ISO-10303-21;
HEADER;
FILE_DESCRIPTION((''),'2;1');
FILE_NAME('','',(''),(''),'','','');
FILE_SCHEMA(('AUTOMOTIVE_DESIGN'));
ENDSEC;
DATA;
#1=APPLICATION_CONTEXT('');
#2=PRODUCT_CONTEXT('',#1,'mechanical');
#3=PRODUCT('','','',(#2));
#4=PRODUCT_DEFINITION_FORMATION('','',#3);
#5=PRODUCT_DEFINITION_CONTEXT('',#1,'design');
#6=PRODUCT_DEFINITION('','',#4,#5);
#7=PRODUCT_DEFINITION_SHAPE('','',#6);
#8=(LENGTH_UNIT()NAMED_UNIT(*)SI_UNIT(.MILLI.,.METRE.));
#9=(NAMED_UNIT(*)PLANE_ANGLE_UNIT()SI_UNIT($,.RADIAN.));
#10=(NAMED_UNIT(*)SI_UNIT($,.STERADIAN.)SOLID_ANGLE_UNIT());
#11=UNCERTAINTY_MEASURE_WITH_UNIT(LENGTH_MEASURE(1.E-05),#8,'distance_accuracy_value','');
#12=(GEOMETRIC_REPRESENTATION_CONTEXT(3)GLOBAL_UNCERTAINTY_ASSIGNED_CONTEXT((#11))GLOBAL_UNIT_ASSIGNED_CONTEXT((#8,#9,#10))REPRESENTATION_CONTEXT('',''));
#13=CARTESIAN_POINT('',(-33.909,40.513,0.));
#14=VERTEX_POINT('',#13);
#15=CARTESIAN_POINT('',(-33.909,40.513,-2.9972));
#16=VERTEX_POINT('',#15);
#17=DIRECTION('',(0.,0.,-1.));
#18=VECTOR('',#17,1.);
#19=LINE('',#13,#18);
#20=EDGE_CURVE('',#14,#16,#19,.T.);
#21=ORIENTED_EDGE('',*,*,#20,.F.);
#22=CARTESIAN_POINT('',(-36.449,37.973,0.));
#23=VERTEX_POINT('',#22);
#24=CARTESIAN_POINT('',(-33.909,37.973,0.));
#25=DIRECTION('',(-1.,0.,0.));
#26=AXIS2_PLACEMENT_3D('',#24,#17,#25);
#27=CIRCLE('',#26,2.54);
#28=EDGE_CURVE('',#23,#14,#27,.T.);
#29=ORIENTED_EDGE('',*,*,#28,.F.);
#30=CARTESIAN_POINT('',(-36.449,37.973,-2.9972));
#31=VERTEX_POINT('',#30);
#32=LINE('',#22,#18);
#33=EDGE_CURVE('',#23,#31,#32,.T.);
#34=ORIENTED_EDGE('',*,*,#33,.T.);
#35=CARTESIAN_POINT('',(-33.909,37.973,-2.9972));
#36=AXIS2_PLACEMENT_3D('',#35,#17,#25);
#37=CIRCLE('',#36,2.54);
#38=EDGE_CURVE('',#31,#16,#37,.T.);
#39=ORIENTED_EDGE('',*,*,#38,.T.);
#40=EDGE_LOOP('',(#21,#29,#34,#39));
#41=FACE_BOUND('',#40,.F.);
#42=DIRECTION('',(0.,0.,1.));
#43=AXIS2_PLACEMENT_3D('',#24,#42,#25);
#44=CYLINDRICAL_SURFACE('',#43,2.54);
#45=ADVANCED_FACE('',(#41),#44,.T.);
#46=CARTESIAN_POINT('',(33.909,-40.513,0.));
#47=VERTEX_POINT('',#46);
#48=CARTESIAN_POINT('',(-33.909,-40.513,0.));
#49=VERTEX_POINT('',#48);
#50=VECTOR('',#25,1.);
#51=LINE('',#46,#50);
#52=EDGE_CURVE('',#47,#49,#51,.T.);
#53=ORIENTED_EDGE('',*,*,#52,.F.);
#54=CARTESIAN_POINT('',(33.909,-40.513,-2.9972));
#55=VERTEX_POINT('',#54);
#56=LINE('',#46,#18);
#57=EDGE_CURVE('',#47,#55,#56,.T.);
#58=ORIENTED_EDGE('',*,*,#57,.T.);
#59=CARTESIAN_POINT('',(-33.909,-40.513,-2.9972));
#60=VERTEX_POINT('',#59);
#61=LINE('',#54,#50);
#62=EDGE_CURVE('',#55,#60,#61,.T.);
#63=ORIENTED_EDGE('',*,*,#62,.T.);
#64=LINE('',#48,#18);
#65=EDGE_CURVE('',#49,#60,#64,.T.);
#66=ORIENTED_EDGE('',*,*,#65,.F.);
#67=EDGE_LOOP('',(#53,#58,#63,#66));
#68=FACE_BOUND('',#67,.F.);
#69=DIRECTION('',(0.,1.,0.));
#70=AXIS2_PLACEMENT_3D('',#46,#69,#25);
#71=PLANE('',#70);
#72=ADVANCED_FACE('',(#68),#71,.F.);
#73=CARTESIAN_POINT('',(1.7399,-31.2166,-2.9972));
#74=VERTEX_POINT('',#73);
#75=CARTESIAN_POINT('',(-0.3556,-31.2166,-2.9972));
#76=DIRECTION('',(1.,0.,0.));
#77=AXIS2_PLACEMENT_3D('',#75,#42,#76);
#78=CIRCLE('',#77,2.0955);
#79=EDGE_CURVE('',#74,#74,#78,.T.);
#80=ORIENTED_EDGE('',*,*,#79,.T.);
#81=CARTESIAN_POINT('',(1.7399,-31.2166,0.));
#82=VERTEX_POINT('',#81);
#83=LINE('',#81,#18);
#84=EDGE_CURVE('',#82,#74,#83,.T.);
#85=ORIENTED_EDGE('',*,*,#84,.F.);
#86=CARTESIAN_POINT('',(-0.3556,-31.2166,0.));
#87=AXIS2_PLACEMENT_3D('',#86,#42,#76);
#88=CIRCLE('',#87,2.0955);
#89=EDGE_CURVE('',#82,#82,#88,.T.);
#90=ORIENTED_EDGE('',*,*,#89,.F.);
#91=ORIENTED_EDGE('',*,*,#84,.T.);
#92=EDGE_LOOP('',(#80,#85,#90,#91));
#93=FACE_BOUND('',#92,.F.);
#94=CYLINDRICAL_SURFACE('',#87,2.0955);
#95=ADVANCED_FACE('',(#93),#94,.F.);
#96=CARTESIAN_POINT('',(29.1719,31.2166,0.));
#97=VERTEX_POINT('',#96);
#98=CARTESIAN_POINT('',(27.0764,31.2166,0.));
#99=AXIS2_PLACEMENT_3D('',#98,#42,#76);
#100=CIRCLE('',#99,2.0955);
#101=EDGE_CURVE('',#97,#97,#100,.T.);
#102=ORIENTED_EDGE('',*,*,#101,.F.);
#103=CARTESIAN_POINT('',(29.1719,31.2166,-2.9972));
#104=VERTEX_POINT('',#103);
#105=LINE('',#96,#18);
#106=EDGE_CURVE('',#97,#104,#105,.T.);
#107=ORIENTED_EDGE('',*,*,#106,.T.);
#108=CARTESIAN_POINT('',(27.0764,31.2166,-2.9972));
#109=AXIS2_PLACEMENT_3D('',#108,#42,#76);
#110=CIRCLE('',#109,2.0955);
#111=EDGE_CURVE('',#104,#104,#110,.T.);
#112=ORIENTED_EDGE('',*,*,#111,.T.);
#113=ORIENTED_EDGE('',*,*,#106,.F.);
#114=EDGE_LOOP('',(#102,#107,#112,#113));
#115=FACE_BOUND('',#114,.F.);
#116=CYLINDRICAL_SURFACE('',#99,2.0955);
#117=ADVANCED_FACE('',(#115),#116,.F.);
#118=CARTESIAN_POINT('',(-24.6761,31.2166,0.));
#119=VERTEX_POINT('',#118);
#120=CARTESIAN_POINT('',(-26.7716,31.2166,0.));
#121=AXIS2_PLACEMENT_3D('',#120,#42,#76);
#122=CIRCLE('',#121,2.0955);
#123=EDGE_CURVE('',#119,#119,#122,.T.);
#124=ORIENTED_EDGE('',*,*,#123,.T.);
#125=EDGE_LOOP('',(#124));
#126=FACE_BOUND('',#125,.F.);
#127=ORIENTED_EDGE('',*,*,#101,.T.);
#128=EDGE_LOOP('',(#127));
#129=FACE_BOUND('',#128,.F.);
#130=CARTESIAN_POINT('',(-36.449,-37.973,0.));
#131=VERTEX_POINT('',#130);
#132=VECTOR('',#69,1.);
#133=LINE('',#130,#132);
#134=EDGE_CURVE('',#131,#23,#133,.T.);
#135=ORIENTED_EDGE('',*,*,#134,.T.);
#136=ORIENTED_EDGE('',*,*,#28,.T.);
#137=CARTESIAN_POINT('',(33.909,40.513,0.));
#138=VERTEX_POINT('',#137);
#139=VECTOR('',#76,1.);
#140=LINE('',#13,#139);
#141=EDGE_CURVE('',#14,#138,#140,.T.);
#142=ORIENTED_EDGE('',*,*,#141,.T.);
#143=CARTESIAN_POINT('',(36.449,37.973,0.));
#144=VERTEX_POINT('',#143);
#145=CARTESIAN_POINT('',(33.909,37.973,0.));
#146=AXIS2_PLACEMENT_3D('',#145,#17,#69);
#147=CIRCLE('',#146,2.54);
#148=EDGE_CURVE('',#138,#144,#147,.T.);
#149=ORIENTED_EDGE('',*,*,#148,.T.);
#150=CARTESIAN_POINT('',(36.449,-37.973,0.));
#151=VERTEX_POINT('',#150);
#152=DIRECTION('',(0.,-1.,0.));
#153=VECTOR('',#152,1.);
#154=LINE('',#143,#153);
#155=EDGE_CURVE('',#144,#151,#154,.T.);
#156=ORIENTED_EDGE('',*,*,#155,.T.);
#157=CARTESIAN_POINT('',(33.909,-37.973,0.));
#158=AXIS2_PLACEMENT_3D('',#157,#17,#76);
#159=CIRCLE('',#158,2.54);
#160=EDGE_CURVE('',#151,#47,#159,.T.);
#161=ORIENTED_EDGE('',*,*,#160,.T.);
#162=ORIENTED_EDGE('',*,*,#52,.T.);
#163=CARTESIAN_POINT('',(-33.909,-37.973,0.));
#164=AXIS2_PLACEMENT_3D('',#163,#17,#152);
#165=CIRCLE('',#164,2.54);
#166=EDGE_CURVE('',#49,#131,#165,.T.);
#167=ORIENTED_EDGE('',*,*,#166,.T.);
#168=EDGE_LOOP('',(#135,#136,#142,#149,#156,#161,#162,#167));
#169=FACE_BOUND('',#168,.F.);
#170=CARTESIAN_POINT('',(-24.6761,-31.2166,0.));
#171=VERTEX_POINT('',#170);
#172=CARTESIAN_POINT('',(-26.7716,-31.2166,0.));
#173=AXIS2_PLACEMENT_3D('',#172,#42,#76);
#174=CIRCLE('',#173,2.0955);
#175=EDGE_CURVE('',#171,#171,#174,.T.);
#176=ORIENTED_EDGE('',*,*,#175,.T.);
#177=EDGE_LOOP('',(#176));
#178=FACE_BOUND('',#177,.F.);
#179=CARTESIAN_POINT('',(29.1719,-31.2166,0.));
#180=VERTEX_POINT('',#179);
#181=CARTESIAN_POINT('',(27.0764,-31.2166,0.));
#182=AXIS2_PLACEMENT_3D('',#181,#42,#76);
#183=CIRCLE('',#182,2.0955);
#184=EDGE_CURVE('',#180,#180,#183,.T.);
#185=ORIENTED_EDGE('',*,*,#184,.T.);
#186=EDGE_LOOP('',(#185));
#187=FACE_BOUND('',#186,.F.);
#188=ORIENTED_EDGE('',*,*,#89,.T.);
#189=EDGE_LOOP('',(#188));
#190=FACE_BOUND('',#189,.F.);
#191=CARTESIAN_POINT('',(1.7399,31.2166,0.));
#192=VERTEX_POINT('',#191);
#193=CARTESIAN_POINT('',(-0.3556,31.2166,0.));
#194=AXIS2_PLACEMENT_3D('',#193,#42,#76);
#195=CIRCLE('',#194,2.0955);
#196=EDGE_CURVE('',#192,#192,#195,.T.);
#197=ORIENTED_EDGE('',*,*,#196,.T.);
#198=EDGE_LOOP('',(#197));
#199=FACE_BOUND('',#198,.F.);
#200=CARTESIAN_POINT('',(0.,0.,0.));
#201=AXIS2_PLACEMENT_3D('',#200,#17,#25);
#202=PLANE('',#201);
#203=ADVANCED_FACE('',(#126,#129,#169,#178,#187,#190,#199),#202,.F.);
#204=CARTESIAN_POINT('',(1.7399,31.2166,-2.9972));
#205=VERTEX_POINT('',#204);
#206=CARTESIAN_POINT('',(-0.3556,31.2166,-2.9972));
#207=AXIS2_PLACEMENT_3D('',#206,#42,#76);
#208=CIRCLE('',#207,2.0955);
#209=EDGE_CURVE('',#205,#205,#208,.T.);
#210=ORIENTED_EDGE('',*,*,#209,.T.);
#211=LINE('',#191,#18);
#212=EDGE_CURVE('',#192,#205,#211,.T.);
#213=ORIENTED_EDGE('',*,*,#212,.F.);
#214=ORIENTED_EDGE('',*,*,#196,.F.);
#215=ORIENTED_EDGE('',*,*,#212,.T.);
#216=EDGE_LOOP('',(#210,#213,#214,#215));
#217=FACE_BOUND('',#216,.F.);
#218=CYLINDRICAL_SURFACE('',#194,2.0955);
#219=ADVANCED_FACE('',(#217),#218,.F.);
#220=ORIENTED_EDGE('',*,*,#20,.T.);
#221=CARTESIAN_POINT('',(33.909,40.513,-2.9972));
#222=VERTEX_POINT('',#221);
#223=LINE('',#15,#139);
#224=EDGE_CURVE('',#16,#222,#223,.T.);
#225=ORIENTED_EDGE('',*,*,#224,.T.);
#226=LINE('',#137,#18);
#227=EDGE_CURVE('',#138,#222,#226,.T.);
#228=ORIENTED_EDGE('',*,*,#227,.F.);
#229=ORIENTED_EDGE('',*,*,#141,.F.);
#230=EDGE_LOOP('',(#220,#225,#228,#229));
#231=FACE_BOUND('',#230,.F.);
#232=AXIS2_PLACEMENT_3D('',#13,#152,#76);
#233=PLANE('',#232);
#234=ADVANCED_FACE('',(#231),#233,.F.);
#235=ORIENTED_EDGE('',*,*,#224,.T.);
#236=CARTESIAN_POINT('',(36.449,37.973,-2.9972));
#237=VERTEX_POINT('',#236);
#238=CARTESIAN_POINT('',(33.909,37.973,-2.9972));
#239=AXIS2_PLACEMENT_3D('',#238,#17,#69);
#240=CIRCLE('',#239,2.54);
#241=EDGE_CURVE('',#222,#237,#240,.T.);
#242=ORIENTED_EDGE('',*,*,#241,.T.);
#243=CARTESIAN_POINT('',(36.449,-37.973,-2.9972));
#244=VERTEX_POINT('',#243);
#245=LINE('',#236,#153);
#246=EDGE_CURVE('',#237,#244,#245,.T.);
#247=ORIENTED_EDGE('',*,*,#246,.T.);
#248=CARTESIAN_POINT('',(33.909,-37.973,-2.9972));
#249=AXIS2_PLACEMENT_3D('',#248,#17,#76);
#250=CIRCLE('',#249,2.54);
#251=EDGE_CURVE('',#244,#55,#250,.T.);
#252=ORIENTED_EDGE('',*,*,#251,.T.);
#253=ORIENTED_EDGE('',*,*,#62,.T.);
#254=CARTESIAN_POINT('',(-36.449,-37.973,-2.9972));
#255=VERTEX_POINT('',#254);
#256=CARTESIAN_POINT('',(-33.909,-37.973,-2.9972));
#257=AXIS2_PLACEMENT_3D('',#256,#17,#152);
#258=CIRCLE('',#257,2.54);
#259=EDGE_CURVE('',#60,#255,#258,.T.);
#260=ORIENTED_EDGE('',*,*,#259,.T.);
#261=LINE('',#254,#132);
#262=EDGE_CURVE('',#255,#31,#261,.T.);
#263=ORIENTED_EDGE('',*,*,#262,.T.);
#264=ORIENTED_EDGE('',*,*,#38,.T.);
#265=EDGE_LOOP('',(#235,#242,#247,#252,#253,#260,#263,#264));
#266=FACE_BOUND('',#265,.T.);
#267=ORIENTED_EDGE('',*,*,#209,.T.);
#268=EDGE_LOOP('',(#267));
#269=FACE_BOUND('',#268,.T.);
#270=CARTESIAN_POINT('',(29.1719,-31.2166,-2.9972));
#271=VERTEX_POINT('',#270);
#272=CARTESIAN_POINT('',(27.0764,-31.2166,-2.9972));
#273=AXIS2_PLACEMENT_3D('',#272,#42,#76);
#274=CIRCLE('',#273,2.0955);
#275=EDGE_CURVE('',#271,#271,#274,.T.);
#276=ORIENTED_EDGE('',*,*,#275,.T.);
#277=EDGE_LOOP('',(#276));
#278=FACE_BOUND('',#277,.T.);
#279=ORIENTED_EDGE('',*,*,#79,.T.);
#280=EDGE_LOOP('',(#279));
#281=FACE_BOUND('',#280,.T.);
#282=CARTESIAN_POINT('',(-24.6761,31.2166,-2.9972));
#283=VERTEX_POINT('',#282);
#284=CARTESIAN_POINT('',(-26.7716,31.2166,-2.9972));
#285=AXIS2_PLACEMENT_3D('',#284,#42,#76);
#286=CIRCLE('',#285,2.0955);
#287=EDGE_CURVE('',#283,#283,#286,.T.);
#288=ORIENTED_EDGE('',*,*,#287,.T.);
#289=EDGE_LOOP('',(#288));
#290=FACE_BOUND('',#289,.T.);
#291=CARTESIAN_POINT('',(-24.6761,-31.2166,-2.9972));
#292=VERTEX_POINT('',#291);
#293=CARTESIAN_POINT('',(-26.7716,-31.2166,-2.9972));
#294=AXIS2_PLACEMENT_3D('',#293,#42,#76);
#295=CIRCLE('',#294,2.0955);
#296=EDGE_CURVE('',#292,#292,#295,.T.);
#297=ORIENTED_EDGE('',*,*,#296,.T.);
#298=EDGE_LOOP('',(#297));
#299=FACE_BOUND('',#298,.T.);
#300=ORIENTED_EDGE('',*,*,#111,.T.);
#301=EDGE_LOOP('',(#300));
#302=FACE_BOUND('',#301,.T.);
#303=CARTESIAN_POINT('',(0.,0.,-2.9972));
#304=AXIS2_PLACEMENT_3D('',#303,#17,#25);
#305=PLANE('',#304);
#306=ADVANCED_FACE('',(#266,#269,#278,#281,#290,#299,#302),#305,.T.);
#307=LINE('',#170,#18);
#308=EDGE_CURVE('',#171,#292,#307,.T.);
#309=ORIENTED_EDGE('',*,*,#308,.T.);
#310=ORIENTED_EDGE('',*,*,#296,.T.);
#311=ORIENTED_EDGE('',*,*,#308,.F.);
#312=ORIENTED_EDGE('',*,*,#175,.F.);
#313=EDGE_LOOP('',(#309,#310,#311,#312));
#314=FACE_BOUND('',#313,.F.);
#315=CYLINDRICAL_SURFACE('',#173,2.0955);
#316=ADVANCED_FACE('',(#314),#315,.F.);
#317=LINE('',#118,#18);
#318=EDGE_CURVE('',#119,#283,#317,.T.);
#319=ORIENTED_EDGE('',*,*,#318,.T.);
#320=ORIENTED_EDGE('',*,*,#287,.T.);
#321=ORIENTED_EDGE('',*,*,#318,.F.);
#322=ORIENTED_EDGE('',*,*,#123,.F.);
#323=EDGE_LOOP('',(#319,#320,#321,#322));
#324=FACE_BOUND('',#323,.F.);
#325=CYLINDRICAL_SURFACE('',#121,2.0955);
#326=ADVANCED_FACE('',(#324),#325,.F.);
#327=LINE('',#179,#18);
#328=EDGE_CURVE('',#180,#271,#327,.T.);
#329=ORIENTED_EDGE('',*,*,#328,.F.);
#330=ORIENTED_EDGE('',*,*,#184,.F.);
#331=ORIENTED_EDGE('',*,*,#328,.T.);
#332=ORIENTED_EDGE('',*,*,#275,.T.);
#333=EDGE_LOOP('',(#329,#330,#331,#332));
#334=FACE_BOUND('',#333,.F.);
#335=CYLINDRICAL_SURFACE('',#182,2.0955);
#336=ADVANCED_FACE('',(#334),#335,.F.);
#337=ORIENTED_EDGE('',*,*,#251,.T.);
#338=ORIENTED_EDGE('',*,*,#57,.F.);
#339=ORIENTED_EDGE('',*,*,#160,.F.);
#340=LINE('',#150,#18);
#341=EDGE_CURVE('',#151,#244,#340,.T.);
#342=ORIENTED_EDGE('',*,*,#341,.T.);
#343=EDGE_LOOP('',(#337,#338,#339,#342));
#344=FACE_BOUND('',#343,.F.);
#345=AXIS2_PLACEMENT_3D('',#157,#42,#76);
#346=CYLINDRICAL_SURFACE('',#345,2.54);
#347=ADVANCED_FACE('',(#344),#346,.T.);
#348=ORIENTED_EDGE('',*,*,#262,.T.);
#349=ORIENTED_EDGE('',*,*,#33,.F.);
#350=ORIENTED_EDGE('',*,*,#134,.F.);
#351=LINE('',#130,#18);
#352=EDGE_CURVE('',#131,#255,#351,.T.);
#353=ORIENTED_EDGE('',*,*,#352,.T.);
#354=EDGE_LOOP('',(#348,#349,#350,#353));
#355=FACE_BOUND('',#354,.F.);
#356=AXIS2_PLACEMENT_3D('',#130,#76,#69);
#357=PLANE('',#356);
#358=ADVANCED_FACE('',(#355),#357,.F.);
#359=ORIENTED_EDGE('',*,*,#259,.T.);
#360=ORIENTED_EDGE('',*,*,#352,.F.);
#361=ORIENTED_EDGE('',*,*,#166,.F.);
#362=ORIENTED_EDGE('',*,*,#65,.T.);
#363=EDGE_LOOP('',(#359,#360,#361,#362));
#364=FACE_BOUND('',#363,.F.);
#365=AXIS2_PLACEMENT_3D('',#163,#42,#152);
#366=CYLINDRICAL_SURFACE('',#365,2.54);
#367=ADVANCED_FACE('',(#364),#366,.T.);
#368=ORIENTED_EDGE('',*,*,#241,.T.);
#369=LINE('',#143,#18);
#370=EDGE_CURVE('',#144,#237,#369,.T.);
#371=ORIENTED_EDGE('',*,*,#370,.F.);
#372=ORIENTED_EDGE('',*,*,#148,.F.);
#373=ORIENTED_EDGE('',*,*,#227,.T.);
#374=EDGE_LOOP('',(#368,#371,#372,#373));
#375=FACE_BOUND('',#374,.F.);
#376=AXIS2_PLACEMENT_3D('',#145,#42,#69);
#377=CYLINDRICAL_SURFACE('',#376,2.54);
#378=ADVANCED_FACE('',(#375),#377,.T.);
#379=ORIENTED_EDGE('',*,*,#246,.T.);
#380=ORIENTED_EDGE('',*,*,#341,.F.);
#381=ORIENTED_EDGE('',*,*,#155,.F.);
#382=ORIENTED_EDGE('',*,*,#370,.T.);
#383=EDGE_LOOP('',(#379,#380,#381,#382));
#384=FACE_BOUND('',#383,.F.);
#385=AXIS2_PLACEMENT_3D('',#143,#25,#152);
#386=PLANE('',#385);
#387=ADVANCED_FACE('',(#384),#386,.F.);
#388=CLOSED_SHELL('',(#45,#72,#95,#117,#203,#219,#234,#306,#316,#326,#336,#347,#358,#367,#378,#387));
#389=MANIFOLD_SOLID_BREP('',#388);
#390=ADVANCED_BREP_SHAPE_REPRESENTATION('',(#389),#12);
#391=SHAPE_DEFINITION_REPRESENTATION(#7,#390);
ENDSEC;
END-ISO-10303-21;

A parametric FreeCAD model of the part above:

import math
import FreeCAD as App
import Part
import Sketcher

V = App.Vector
Q = App.Units.Quantity

doc = App.newDocument("Part")
body = doc.addObject("PartDesign::Body", "Body")

# Sketch on XY plane
sketch1 = doc.addObject("Sketcher::SketchObject", "Sketch")
body.addObject(sketch1)
sketch1.AttachmentSupport = (doc.XY_Plane, [""])
sketch1.MapMode = "FlatFace"
sketch1.addGeometry([
    Part.LineSegment(V(-36.449, 37.973, 0), V(-36.449, -37.973, 0)),  # 0
    Part.ArcOfCircle(Part.Circle(V(-33.909, -37.973, 0), V(0, 0, 1), 2.54), math.radians(-180), math.radians(-90)),  # 1
    Part.LineSegment(V(-33.909, -40.513, 0), V(33.909, -40.513, 0)),  # 2
    Part.ArcOfCircle(Part.Circle(V(33.909, -37.973, 0), V(0, 0, 1), 2.54), math.radians(-90), math.radians(0)),  # 3
    Part.LineSegment(V(36.449, -37.973, 0), V(36.449, 37.973, 0)),  # 4
    Part.ArcOfCircle(Part.Circle(V(33.909, 37.973, 0), V(0, 0, 1), 2.54), math.radians(0), math.radians(90)),  # 5
    Part.LineSegment(V(33.909, 40.513, 0), V(-33.909, 40.513, 0)),  # 6
    Part.ArcOfCircle(Part.Circle(V(-33.909, 37.973, 0), V(0, 0, 1), 2.54), math.radians(90), math.radians(180)),  # 7
], False)
sketch1.addConstraint([
    Sketcher.Constraint("Tangent", 0, 2, 1, 1),
    Sketcher.Constraint("Tangent", 1, 2, 2, 1),
    Sketcher.Constraint("Tangent", 2, 2, 3, 1),
    Sketcher.Constraint("Tangent", 3, 2, 4, 1),
    Sketcher.Constraint("Tangent", 4, 2, 5, 1),
    Sketcher.Constraint("Tangent", 5, 2, 6, 1),
    Sketcher.Constraint("Tangent", 6, 2, 7, 1),
    Sketcher.Constraint("Tangent", 7, 2, 0, 1),
    Sketcher.Constraint("Vertical", 0),
    Sketcher.Constraint("Horizontal", 2),
    Sketcher.Constraint("Vertical", 4),
    Sketcher.Constraint("Horizontal", 6),
    Sketcher.Constraint("Equal", 1, 3),
    Sketcher.Constraint("Equal", 3, 5),
    Sketcher.Constraint("Equal", 5, 7),
    Sketcher.Constraint("Symmetric", 1, 3, 5, 3, -1, 1),
    Sketcher.Constraint("Radius", 1, Q("0.1 in")),
    Sketcher.Constraint("DistanceX", 2, 1, 2, 2, Q("2.67 in")),
    Sketcher.Constraint("DistanceY", 0, 2, 0, 1, Q("2.99 in")),
])
pad1 = doc.addObject("PartDesign::Pad", "Pad")
body.addObject(pad1)
pad1.Profile = sketch1
pad1.Length = Q("0.118 in")
pad1.Reversed = True

# Sketch on XY plane
sketch2 = doc.addObject("Sketcher::SketchObject", "Sketch001")
body.addObject(sketch2)
sketch2.AttachmentSupport = (doc.XY_Plane, [""])
sketch2.MapMode = "FlatFace"
sketch2.addGeometry([
    Part.Circle(V(-26.7716, 31.2166, 0), V(0, 0, 1), 2.0955),  # 0
    Part.Circle(V(-0.3556, 31.2166, 0), V(0, 0, 1), 2.0955),  # 1
    Part.Circle(V(27.0764, 31.2166, 0), V(0, 0, 1), 2.0955),  # 2
    Part.Circle(V(27.0764, -31.2166, 0), V(0, 0, 1), 2.0955),  # 3
    Part.Circle(V(-0.3556, -31.2166, 0), V(0, 0, 1), 2.0955),  # 4
    Part.Circle(V(-26.7716, -31.2166, 0), V(0, 0, 1), 2.0955),  # 5
], False)
sketch2.addConstraint([
    Sketcher.Constraint("Equal", 0, 1),
    Sketcher.Constraint("Equal", 1, 2),
    Sketcher.Constraint("Equal", 2, 3),
    Sketcher.Constraint("Equal", 3, 4),
    Sketcher.Constraint("Equal", 4, 5),
    Sketcher.Constraint("Symmetric", 2, 3, 3, 3, -1),
    Sketcher.Constraint("Symmetric", 1, 3, 4, 3, -1),
    Sketcher.Constraint("Symmetric", 0, 3, 5, 3, -1),
    Sketcher.Constraint("Horizontal", 0, 3, 1, 3),
    Sketcher.Constraint("Horizontal", 1, 3, 2, 3),
    Sketcher.Constraint("Diameter", 0, Q("0.165 in")),
    Sketcher.Constraint("DistanceX", 0, 3, 1, 3, Q("1.04 in")),
    Sketcher.Constraint("DistanceX", 1, 3, 2, 3, Q("1.08 in")),
    Sketcher.Constraint("DistanceX", 0, 3, -1, 1, Q("1.054 in")),
    Sketcher.Constraint("DistanceY", -1, 1, 0, 3, Q("1.229 in")),
])
pocket1 = doc.addObject("PartDesign::Pocket", "Pocket")
body.addObject(pocket1)
pocket1.Profile = sketch2
pocket1.Type = "ThroughAll"

doc.recompute()
